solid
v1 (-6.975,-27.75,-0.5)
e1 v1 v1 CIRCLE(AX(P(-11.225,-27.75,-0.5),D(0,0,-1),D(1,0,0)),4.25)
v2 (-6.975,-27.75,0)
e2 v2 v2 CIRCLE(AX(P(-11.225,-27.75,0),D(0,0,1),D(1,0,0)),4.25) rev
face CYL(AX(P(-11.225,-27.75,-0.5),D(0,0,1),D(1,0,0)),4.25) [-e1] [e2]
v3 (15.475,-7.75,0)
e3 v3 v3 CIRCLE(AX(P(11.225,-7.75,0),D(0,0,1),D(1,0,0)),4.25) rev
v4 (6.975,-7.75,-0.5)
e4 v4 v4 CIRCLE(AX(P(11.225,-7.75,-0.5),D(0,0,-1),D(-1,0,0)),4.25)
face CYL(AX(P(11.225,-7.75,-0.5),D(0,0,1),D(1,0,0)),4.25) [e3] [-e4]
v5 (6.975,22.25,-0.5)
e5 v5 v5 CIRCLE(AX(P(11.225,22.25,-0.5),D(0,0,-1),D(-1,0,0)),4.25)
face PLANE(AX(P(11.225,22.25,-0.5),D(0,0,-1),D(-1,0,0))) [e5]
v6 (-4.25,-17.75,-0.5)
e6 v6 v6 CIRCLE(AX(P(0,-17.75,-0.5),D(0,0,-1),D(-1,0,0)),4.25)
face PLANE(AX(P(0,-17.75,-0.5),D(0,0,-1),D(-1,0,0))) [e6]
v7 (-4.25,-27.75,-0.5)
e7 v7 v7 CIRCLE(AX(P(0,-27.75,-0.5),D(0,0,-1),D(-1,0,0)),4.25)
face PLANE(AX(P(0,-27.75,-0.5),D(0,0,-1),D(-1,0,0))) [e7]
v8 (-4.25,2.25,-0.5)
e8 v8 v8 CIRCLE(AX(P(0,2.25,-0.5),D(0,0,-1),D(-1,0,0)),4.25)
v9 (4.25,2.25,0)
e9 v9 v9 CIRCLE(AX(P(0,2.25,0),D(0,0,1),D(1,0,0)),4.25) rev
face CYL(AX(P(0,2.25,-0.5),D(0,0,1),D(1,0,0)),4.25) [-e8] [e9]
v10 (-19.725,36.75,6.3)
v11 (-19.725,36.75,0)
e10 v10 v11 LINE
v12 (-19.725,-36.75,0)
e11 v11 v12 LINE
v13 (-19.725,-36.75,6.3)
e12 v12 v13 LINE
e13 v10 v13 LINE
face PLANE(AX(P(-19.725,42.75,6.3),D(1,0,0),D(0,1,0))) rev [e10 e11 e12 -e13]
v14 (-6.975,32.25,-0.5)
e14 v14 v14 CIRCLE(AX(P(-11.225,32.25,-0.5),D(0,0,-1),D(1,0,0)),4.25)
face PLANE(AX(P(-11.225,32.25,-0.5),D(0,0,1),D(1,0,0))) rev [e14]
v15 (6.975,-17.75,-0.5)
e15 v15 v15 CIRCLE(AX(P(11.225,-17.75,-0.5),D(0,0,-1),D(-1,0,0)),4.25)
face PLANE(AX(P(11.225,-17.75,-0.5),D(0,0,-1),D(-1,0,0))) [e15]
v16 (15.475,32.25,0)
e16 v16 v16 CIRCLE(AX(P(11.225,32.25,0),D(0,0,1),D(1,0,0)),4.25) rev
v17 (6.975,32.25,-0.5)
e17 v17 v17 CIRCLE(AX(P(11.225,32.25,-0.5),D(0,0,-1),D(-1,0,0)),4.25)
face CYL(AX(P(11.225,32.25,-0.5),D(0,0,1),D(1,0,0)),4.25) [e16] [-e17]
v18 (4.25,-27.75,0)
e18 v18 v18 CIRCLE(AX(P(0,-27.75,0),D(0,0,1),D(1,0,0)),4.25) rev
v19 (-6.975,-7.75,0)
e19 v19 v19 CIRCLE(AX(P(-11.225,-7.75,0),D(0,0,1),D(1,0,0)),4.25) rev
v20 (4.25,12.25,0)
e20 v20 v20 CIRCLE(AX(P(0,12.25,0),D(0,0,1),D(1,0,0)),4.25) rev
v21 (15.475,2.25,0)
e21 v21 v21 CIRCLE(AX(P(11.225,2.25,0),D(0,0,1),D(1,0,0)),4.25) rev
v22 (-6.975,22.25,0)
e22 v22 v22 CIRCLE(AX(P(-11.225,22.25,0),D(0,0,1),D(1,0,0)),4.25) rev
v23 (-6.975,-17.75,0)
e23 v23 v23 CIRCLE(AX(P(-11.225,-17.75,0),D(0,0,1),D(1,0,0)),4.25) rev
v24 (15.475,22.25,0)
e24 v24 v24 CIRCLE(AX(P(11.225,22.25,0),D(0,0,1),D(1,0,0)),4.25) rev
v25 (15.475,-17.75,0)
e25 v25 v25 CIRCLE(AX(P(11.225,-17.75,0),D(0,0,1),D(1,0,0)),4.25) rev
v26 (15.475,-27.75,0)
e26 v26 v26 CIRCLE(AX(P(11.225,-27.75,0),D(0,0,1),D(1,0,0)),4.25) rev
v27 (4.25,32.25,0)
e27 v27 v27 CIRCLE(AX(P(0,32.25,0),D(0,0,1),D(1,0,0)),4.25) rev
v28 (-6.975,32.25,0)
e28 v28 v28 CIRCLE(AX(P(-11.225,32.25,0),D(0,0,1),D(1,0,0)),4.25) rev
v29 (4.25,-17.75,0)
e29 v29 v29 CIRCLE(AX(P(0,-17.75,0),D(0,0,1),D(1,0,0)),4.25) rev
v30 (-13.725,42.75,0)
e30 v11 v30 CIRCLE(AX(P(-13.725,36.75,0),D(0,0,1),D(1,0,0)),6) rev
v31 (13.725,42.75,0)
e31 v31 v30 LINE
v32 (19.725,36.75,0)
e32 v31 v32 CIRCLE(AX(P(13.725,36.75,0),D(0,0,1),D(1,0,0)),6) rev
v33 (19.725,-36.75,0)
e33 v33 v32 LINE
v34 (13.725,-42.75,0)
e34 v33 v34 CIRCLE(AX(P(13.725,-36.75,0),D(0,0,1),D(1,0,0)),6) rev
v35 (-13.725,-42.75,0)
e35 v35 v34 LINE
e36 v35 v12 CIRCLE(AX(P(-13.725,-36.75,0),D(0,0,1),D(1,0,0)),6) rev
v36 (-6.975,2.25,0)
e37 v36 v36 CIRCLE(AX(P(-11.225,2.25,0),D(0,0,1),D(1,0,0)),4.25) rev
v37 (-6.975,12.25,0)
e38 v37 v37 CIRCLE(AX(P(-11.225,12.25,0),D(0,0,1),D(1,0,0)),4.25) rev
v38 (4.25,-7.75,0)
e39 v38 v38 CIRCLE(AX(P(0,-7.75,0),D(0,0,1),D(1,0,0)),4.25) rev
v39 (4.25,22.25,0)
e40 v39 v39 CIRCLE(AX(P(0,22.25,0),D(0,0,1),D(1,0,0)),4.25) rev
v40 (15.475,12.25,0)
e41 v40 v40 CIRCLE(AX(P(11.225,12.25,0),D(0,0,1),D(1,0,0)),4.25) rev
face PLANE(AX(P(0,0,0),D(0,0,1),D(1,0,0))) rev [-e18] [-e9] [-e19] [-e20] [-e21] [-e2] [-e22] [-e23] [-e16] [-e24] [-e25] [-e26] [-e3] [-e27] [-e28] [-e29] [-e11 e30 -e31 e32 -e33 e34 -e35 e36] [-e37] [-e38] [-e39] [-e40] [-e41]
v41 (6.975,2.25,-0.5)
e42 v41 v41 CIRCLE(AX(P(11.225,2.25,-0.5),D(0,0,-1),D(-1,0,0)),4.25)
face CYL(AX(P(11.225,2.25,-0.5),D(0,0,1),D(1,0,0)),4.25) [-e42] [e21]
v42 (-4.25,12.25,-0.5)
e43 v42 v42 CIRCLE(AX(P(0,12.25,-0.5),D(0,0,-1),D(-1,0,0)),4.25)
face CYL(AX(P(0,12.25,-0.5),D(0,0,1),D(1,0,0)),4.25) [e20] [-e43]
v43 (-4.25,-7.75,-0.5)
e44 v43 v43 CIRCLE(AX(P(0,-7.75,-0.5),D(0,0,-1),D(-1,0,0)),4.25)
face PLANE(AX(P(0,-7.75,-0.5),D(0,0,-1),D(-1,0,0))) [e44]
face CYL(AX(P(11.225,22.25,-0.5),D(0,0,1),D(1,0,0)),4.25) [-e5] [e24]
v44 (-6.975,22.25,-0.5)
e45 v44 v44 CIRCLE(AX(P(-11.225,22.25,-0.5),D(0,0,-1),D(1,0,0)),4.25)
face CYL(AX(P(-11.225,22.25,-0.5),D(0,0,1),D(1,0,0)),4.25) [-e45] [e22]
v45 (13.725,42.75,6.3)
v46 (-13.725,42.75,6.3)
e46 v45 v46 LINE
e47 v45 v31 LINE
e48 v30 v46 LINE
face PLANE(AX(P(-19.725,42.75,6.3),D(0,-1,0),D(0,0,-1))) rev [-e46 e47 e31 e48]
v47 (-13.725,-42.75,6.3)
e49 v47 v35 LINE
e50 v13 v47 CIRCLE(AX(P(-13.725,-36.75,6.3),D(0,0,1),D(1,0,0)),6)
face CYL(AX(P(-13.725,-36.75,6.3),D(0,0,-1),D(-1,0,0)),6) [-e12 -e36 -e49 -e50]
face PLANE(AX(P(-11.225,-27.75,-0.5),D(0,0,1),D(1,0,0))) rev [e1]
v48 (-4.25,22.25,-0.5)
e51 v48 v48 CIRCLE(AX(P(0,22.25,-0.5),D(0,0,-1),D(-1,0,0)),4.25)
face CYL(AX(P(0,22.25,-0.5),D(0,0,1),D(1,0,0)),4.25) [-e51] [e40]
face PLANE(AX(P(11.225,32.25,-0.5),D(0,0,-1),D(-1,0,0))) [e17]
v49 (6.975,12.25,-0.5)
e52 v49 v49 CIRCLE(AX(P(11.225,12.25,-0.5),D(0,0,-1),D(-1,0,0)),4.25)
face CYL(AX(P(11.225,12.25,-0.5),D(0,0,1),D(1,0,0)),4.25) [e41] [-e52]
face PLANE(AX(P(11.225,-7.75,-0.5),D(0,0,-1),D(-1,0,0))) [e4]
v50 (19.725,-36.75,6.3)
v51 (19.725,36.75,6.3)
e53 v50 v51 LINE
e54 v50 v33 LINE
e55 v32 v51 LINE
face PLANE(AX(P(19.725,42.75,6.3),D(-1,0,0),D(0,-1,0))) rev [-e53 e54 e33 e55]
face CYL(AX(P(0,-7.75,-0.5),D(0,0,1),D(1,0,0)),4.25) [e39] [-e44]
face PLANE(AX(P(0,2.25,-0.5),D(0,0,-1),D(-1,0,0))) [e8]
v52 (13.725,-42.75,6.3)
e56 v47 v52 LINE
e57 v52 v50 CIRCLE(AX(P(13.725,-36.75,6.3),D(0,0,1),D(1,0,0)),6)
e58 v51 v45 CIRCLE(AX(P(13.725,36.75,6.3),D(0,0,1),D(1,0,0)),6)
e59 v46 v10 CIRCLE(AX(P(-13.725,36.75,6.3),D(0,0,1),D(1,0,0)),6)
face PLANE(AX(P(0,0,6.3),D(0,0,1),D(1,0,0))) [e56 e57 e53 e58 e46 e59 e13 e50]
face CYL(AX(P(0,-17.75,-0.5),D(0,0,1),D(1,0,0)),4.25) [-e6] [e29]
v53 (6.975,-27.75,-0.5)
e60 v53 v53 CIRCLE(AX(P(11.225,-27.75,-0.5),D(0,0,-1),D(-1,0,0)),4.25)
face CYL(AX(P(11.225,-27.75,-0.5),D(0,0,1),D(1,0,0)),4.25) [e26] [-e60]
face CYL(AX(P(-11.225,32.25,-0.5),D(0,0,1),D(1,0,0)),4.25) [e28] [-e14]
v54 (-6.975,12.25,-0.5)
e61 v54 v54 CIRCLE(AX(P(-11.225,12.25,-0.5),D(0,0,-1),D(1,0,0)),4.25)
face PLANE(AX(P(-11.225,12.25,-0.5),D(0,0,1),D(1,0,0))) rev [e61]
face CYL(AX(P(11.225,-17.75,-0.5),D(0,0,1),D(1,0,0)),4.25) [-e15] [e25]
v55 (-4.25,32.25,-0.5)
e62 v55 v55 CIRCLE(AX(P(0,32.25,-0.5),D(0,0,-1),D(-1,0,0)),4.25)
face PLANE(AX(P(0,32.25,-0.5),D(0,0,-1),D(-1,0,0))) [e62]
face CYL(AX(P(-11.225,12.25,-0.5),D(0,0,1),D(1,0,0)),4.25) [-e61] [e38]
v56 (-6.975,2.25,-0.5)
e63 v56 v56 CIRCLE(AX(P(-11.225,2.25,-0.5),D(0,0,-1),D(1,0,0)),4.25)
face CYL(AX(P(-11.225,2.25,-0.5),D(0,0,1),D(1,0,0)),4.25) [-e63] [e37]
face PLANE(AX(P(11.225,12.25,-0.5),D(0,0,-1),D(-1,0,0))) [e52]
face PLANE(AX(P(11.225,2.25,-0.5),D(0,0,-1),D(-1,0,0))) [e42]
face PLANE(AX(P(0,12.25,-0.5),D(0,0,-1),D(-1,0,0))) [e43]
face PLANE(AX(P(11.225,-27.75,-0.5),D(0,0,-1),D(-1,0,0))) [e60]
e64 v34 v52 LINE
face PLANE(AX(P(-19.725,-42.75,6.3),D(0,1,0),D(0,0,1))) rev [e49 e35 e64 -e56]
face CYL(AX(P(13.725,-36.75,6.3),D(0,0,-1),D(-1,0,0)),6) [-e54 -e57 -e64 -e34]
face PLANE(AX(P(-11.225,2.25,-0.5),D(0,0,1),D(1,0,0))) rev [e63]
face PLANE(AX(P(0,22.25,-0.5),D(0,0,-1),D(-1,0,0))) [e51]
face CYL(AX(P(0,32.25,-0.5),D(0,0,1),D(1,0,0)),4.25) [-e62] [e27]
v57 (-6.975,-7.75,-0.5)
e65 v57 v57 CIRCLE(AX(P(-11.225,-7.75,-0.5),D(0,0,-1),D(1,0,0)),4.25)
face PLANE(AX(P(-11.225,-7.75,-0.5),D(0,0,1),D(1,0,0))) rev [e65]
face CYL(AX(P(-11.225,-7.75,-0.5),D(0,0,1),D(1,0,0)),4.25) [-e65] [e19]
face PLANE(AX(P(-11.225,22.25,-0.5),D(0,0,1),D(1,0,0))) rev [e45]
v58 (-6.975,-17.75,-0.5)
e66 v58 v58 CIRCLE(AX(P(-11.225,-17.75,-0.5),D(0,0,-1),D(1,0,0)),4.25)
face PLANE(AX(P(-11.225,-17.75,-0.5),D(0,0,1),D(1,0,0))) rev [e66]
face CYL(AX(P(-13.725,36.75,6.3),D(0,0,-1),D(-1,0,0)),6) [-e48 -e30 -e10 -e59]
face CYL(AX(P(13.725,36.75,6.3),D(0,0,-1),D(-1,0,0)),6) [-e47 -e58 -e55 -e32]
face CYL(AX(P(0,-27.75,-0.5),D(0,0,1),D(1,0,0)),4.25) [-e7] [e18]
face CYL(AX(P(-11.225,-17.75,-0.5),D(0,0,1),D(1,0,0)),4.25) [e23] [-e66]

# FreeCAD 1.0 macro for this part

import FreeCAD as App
import Part
import Sketcher

V = App.Vector


def edges_at(feature, points):
    """Names of the edges that pass closest to the given points."""
    edges = feature.Shape.Edges
    near = lambda p: min(range(len(edges)), key=lambda i: edges[i].distToShape(Part.Vertex(*p))[0])
    return sorted({f"Edge{near(p) + 1}" for p in points})


def add_polygon(sketch, points):
    """Adds a closed chain of lines whose ends are joined by coincident constraints."""
    first, n = sketch.GeometryCount, len(points)
    for a, b in zip(points, points[1:] + points[:1]):
        sketch.addGeometry(Part.LineSegment(App.Vector(*a, 0), App.Vector(*b, 0)), False)
    for i in range(n):
        sketch.addConstraint(Sketcher.Constraint("Coincident", first + i, 2, first + (i + 1) % n, 1))

doc = App.newDocument("Part")
body = doc.addObject("PartDesign::Body", "Body")

# Sketch on XY plane
sketch1 = body.newObject("Sketcher::SketchObject", "Sketch")
sketch1.AttachmentSupport = (doc.getObject("XY_Plane"), [""])
sketch1.MapMode = "FlatFace"
add_polygon(sketch1, [(-19.725, 42.75), (-19.725, -42.75), (19.725, -42.75), (19.725, 42.75)])  # lines 0-3
sketch1.addConstraint([
    Sketcher.Constraint("Vertical", 0),
    Sketcher.Constraint("Horizontal", 1),
    Sketcher.Constraint("Vertical", 2),
    Sketcher.Constraint("Horizontal", 3),
    Sketcher.Constraint("Symmetric", 0, 2, 2, 2, -1, 1),
    Sketcher.Constraint("DistanceY", 0, 2, 0, 1, 85.5),
    Sketcher.Constraint("DistanceX", 1, 1, 1, 2, 39.45),
])
pad1 = body.newObject("PartDesign::Pad", "Pad")
pad1.Profile = sketch1
pad1.Length = 6.3
doc.recompute()

fillet = body.newObject("PartDesign::Fillet", "Fillet")
fillet.Base = (pad1, edges_at(pad1, [
    (19.725, -42.75, 3.15),
    (-19.725, -42.75, 3.15),
    (-19.725, 42.75, 3.15),
    (19.725, 42.75, 3.15),
]))
fillet.Radius = 6

# Sketch on XY plane
sketch2 = body.newObject("Sketcher::SketchObject", "Sketch001")
sketch2.AttachmentSupport = (doc.getObject("XY_Plane"), [""])
sketch2.MapMode = "FlatFace"
sketch2.addGeometry([
    Part.Circle(V(11.225, 32.25, 0), V(0, 0, 1), 4.25),  # 0
    Part.Circle(V(-11.225, 32.25, 0), V(0, 0, 1), 4.25),  # 1
    Part.Circle(V(0, 32.25, 0), V(0, 0, 1), 4.25),  # 2
    Part.Circle(V(11.225, 22.25, 0), V(0, 0, 1), 4.25),  # 3
    Part.Circle(V(0, 22.25, 0), V(0, 0, 1), 4.25),  # 4
    Part.Circle(V(-11.225, 22.25, 0), V(0, 0, 1), 4.25),  # 5
    Part.Circle(V(11.225, 12.25, 0), V(0, 0, 1), 4.25),  # 6
    Part.Circle(V(0, 12.25, 0), V(0, 0, 1), 4.25),  # 7
    Part.Circle(V(-11.225, 12.25, 0), V(0, 0, 1), 4.25),  # 8
    Part.Circle(V(11.225, 2.25, 0), V(0, 0, 1), 4.25),  # 9
    Part.Circle(V(0, 2.25, 0), V(0, 0, 1), 4.25),  # 10
    Part.Circle(V(-11.225, 2.25, 0), V(0, 0, 1), 4.25),  # 11
    Part.Circle(V(11.225, -7.75, 0), V(0, 0, 1), 4.25),  # 12
    Part.Circle(V(0, -7.75, 0), V(0, 0, 1), 4.25),  # 13
    Part.Circle(V(-11.225, -7.75, 0), V(0, 0, 1), 4.25),  # 14
    Part.Circle(V(11.225, -17.75, 0), V(0, 0, 1), 4.25),  # 15
    Part.Circle(V(0, -17.75, 0), V(0, 0, 1), 4.25),  # 16
    Part.Circle(V(-11.225, -17.75, 0), V(0, 0, 1), 4.25),  # 17
    Part.Circle(V(11.225, -27.75, 0), V(0, 0, 1), 4.25),  # 18
    Part.Circle(V(0, -27.75, 0), V(0, 0, 1), 4.25),  # 19
    Part.Circle(V(-11.225, -27.75, 0), V(0, 0, 1), 4.25),  # 20
], False)
sketch2.addConstraint([
    Sketcher.Constraint("Equal", 0, 1),
    Sketcher.Constraint("Equal", 1, 2),
    Sketcher.Constraint("Equal", 2, 3),
    Sketcher.Constraint("Equal", 3, 4),
    Sketcher.Constraint("Equal", 4, 5),
    Sketcher.Constraint("Equal", 5, 6),
    Sketcher.Constraint("Equal", 6, 7),
    Sketcher.Constraint("Equal", 7, 8),
    Sketcher.Constraint("Equal", 8, 9),
    Sketcher.Constraint("Equal", 9, 10),
    Sketcher.Constraint("Equal", 10, 11),
    Sketcher.Constraint("Equal", 11, 12),
    Sketcher.Constraint("Equal", 12, 13),
    Sketcher.Constraint("Equal", 13, 14),
    Sketcher.Constraint("Equal", 14, 15),
    Sketcher.Constraint("Equal", 15, 16),
    Sketcher.Constraint("Equal", 16, 17),
    Sketcher.Constraint("Equal", 17, 18),
    Sketcher.Constraint("Equal", 18, 19),
    Sketcher.Constraint("Equal", 19, 20),
    Sketcher.Constraint("Symmetric", 0, 3, 1, 3, -2),
    Sketcher.Constraint("Symmetric", 3, 3, 5, 3, -2),
    Sketcher.Constraint("Symmetric", 6, 3, 8, 3, -2),
    Sketcher.Constraint("Symmetric", 9, 3, 11, 3, -2),
    Sketcher.Constraint("Symmetric", 12, 3, 14, 3, -2),
    Sketcher.Constraint("Symmetric", 15, 3, 17, 3, -2),
    Sketcher.Constraint("Symmetric", 18, 3, 20, 3, -2),
    Sketcher.Constraint("PointOnObject", 2, 3, -2),
    Sketcher.Constraint("PointOnObject", 4, 3, -2),
    Sketcher.Constraint("PointOnObject", 7, 3, -2),
    Sketcher.Constraint("PointOnObject", 10, 3, -2),
    Sketcher.Constraint("PointOnObject", 13, 3, -2),
    Sketcher.Constraint("PointOnObject", 16, 3, -2),
    Sketcher.Constraint("PointOnObject", 19, 3, -2),
    Sketcher.Constraint("Horizontal", 1, 3, 2, 3),
    Sketcher.Constraint("Horizontal", 3, 3, 4, 3),
    Sketcher.Constraint("Horizontal", 6, 3, 7, 3),
    Sketcher.Constraint("Horizontal", 9, 3, 10, 3),
    Sketcher.Constraint("Horizontal", 12, 3, 13, 3),
    Sketcher.Constraint("Horizontal", 15, 3, 16, 3),
    Sketcher.Constraint("Horizontal", 18, 3, 19, 3),
    Sketcher.Constraint("Vertical", 0, 3, 3, 3),
    Sketcher.Constraint("Vertical", 3, 3, 6, 3),
    Sketcher.Constraint("Vertical", 6, 3, 9, 3),
    Sketcher.Constraint("Vertical", 9, 3, 12, 3),
    Sketcher.Constraint("Vertical", 12, 3, 15, 3),
    Sketcher.Constraint("Vertical", 15, 3, 18, 3),
    Sketcher.Constraint("Diameter", 0, 8.5),
    Sketcher.Constraint("DistanceY", 3, 3, 0, 3, 10.0),
    Sketcher.Constraint("DistanceY", 6, 3, 3, 3, 10.0),
    Sketcher.Constraint("DistanceY", 9, 3, 6, 3, 10.0),
    Sketcher.Constraint("DistanceY", 12, 3, 9, 3, 10.0),
    Sketcher.Constraint("DistanceY", 15, 3, 12, 3, 10.0),
    Sketcher.Constraint("DistanceY", 18, 3, 15, 3, 10.0),
    Sketcher.Constraint("DistanceY", -1, 1, 0, 3, 32.25),
    Sketcher.Constraint("DistanceX", 1, 3, 0, 3, 22.45),
])
pad2 = body.newObject("PartDesign::Pad", "Pad001")
pad2.Profile = sketch2
pad2.Length = 0.5
pad2.Reversed = True

doc.recompute()
